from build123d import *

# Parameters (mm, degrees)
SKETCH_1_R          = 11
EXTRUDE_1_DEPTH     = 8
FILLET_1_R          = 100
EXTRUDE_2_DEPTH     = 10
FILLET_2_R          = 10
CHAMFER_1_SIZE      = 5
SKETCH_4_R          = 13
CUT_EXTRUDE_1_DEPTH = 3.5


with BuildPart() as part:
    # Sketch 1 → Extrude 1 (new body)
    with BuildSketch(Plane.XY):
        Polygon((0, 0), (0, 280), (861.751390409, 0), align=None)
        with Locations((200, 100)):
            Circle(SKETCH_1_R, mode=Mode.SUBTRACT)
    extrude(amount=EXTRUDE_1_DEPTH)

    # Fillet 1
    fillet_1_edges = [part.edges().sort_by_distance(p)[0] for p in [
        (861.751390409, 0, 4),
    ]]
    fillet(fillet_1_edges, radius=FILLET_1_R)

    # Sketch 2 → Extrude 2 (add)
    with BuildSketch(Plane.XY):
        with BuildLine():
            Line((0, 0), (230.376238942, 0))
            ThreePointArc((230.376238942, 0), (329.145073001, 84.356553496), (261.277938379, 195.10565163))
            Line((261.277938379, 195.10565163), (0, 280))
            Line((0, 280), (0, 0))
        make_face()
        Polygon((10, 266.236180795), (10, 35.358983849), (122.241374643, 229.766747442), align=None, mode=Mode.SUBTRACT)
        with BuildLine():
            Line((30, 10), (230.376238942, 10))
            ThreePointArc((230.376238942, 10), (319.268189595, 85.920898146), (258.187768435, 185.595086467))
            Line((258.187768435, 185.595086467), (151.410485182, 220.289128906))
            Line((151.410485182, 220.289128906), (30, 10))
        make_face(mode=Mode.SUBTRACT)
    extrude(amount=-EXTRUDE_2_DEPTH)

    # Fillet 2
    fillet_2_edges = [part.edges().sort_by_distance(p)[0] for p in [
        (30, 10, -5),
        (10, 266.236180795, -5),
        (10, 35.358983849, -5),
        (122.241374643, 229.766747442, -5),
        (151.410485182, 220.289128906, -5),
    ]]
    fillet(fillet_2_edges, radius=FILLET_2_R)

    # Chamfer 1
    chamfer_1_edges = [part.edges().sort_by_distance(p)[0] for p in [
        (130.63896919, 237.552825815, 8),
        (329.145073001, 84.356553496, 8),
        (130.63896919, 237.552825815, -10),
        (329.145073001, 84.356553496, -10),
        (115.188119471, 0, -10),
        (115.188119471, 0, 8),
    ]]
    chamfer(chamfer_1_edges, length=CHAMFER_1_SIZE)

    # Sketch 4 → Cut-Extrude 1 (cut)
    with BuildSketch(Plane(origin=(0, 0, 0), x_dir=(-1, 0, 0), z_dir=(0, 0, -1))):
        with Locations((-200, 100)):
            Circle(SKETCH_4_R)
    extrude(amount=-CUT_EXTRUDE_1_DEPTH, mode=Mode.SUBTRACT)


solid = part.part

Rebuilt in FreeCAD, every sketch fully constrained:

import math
import FreeCAD as App
import Part
import Sketcher

V = App.Vector
Q = App.Units.Quantity


def edges_at(feature, points):
    """Names of the edges that pass closest to the given points."""
    edges = feature.Shape.Edges
    near = lambda p: min(range(len(edges)), key=lambda i: edges[i].distToShape(Part.Vertex(*p))[0])
    return sorted({f"Edge{near(p) + 1}" for p in points})

doc = App.newDocument("Part")
params = doc.addObject("Spreadsheet::Sheet", "Params")
for row, (alias, value) in enumerate([
    ("sketch1_diameter", "22 mm"),
    ("sketch1_height", "280 mm"),
    ("pad1_length", "8 mm"),
    ("fillet_radius", "100 mm"),
    ("sketch2_radius", "100 mm"),
    ("sketch2_radius2", "90 mm"),
    ("sketch2_height", "280 mm"),
    ("pad2_length", "10 mm"),
    ("fillet2_radius", "10 mm"),
    ("chamfer_size", "5 mm"),
    ("sketch3_diameter", "26 mm"),
    ("pocket1_length", "3.5 mm"),
], start=1):
    params.set(f"A{row}", alias)
    params.set(f"B{row}", "=" + value)
    params.setAlias(f"B{row}", alias)

body = doc.addObject("PartDesign::Body", "Body")

sketch1 = doc.addObject("Sketcher::SketchObject", "Sketch")
body.addObject(sketch1)
sketch1.AttachmentSupport = (doc.XY_Plane, [""])
sketch1.MapMode = "FlatFace"
sketch1.addGeometry([
    Part.LineSegment(V(0, 280, 0), V(0, 0, 0)),
    Part.LineSegment(V(0, 0, 0), V(862, 0, 0)),
    Part.LineSegment(V(862, 0, 0), V(0, 280, 0)),
    Part.Circle(V(200, 100, 0), V(0, 0, 1), 11),
], False)
sketch1.addConstraint([
    Sketcher.Constraint("Coincident", 0, 2, 1, 1),
    Sketcher.Constraint("Coincident", 1, 2, 2, 1),
    Sketcher.Constraint("Coincident", 2, 2, 0, 1),
    Sketcher.Constraint("Vertical", 0),
    Sketcher.Constraint("Horizontal", 1),
    Sketcher.Constraint("Coincident", 0, 2, -1, 1),
    Sketcher.Constraint("Diameter", 3, Q("22 mm")),
    Sketcher.Constraint("DistanceY", 0, 2, 0, 1, Q("280 mm")),
    Sketcher.Constraint("Angle", 2, Q("162 deg")),
    Sketcher.Constraint("DistanceX", -1, 1, 3, 3, Q("200 mm")),
    Sketcher.Constraint("DistanceY", -1, 1, 3, 3, Q("100 mm")),
])
sketch1.setExpression("Constraints[6]", "Params.sketch1_diameter")
sketch1.setExpression("Constraints[7]", "Params.sketch1_height")
pad1 = doc.addObject("PartDesign::Pad", "Pad")
body.addObject(pad1)
pad1.Profile = sketch1
pad1.setExpression("Length", "Params.pad1_length")
doc.recompute()

fillet = doc.addObject("PartDesign::Fillet", "Fillet")
body.addObject(fillet)
fillet.Base = (pad1, edges_at(pad1, [(861.751, 0, 4)]))
fillet.setExpression("Radius", "Params.fillet_radius")

sketch2 = doc.addObject("Sketcher::SketchObject", "Sketch001")
body.addObject(sketch2)
sketch2.AttachmentSupport = (doc.XY_Plane, [""])
sketch2.MapMode = "FlatFace"
sketch2.addGeometry([
    Part.LineSegment(V(0, 0, 0), V(230, 0, 0)),
    Part.ArcOfCircle(Part.Circle(V(230, 100, 0), V(0, 0, 1), 100), math.radians(-90), math.radians(72)),
    Part.LineSegment(V(261, 195, 0), V(0, 280, 0)),
    Part.LineSegment(V(0, 280, 0), V(0, 0, 0)),
    Part.LineSegment(V(230, 10, 0), V(30, 10, 0)),
    Part.LineSegment(V(30, 10, 0), V(151, 220, 0)),
    Part.LineSegment(V(151, 220, 0), V(258, 186, 0)),
    Part.ArcOfCircle(Part.Circle(V(230, 100, 0), V(0, 0, 1), 90), math.radians(-90), math.radians(72)),
    Part.LineSegment(V(10, 35, 0), V(10, 266, 0)),
    Part.LineSegment(V(10, 266, 0), V(122, 230, 0)),
    Part.LineSegment(V(122, 230, 0), V(10, 35, 0)),
], False)
sketch2.addConstraint([
    Sketcher.Constraint("Tangent", 0, 2, 1, 1),
    Sketcher.Constraint("Tangent", 1, 2, 2, 1),
    Sketcher.Constraint("Coincident", 2, 2, 3, 1),
    Sketcher.Constraint("Coincident", 3, 2, 0, 1),
    Sketcher.Constraint("Coincident", 4, 2, 5, 1),
    Sketcher.Constraint("Coincident", 5, 2, 6, 1),
    Sketcher.Constraint("Tangent", 6, 2, 7, 2),
    Sketcher.Constraint("Tangent", 7, 1, 4, 1),
    Sketcher.Constraint("Coincident", 8, 2, 9, 1),
    Sketcher.Constraint("Coincident", 9, 2, 10, 1),
    Sketcher.Constraint("Coincident", 10, 2, 8, 1),
    Sketcher.Constraint("Horizontal", 0),
    Sketcher.Constraint("Vertical", 3),
    Sketcher.Constraint("Horizontal", 4),
    Sketcher.Constraint("Vertical", 8),
    Sketcher.Constraint("Coincident", 3, 2, -1, 1),
    Sketcher.Constraint("Coincident", 7, 3, 1, 3),
    Sketcher.Constraint("Parallel", 2, 6),
    Sketcher.Constraint("Parallel", 6, 9),
    Sketcher.Constraint("Parallel", 5, 10),
    Sketcher.Constraint("Radius", 1, Q("100 mm")),
    Sketcher.Constraint("Radius", 7, Q("90 mm")),
    Sketcher.Constraint("DistanceY", 3, 2, 3, 1, Q("280 mm")),
    Sketcher.Constraint("Angle", 2, Q("162 deg")),
    Sketcher.Constraint("Angle", 5, Q("60 deg")),
    Sketcher.Constraint("DistanceX", -1, 1, 4, 2, Q("30 mm")),
    Sketcher.Constraint("DistanceX", -1, 1, 8, 2, Q("10 mm")),
    Sketcher.Constraint("Distance", 10, Q("224.482749 mm")),
    Sketcher.Constraint("DistanceY", -1, 1, 8, 2, Q("266.236181 mm")),
])
sketch2.setExpression("Constraints[20]", "Params.sketch2_radius")
sketch2.setExpression("Constraints[21]", "Params.sketch2_radius2")
sketch2.setExpression("Constraints[22]", "Params.sketch2_height")
pad2 = doc.addObject("PartDesign::Pad", "Pad001")
body.addObject(pad2)
pad2.Profile = sketch2
pad2.setExpression("Length", "Params.pad2_length")
pad2.Reversed = True
doc.recompute()

fillet2 = doc.addObject("PartDesign::Fillet", "Fillet001")
body.addObject(fillet2)
fillet2.Base = (pad2, edges_at(pad2, [
    (30, 10, -5),
    (10, 266.236, -5),
    (10, 35.359, -5),
    (122.241, 229.767, -5),
    (151.41, 220.289, -5),
]))
fillet2.setExpression("Radius", "Params.fillet2_radius")
doc.recompute()

chamfer = doc.addObject("PartDesign::Chamfer", "Chamfer")
body.addObject(chamfer)
chamfer.Base = (fillet2, edges_at(fillet2, [
    (130.639, 237.553, 8),
    (329.145, 84.357, 8),
    (130.639, 237.553, -10),
    (329.145, 84.357, -10),
    (115.188, 0, -10),
    (115.188, 0, 8),
]))
chamfer.setExpression("Size", "Params.chamfer_size")

sketch3 = doc.addObject("Sketcher::SketchObject", "Sketch002")
body.addObject(sketch3)
sketch3.AttachmentSupport = (doc.XY_Plane, [""])
sketch3.MapMode = "FlatFace"
sketch3.addGeometry(Part.Circle(V(200, 100, 0), V(0, 0, 1), 13), False)
sketch3.addConstraint([
    Sketcher.Constraint("Diameter", 0, Q("26 mm")),
    Sketcher.Constraint("DistanceX", -1, 1, 0, 3, Q("200 mm")),
    Sketcher.Constraint("DistanceY", -1, 1, 0, 3, Q("100 mm")),
])
sketch3.setExpression("Constraints[0]", "Params.sketch3_diameter")
pocket1 = doc.addObject("PartDesign::Pocket", "Pocket")
body.addObject(pocket1)
pocket1.Profile = sketch3
pocket1.setExpression("Length", "Params.pocket1_length")
pocket1.Reversed = True

doc.recompute()
